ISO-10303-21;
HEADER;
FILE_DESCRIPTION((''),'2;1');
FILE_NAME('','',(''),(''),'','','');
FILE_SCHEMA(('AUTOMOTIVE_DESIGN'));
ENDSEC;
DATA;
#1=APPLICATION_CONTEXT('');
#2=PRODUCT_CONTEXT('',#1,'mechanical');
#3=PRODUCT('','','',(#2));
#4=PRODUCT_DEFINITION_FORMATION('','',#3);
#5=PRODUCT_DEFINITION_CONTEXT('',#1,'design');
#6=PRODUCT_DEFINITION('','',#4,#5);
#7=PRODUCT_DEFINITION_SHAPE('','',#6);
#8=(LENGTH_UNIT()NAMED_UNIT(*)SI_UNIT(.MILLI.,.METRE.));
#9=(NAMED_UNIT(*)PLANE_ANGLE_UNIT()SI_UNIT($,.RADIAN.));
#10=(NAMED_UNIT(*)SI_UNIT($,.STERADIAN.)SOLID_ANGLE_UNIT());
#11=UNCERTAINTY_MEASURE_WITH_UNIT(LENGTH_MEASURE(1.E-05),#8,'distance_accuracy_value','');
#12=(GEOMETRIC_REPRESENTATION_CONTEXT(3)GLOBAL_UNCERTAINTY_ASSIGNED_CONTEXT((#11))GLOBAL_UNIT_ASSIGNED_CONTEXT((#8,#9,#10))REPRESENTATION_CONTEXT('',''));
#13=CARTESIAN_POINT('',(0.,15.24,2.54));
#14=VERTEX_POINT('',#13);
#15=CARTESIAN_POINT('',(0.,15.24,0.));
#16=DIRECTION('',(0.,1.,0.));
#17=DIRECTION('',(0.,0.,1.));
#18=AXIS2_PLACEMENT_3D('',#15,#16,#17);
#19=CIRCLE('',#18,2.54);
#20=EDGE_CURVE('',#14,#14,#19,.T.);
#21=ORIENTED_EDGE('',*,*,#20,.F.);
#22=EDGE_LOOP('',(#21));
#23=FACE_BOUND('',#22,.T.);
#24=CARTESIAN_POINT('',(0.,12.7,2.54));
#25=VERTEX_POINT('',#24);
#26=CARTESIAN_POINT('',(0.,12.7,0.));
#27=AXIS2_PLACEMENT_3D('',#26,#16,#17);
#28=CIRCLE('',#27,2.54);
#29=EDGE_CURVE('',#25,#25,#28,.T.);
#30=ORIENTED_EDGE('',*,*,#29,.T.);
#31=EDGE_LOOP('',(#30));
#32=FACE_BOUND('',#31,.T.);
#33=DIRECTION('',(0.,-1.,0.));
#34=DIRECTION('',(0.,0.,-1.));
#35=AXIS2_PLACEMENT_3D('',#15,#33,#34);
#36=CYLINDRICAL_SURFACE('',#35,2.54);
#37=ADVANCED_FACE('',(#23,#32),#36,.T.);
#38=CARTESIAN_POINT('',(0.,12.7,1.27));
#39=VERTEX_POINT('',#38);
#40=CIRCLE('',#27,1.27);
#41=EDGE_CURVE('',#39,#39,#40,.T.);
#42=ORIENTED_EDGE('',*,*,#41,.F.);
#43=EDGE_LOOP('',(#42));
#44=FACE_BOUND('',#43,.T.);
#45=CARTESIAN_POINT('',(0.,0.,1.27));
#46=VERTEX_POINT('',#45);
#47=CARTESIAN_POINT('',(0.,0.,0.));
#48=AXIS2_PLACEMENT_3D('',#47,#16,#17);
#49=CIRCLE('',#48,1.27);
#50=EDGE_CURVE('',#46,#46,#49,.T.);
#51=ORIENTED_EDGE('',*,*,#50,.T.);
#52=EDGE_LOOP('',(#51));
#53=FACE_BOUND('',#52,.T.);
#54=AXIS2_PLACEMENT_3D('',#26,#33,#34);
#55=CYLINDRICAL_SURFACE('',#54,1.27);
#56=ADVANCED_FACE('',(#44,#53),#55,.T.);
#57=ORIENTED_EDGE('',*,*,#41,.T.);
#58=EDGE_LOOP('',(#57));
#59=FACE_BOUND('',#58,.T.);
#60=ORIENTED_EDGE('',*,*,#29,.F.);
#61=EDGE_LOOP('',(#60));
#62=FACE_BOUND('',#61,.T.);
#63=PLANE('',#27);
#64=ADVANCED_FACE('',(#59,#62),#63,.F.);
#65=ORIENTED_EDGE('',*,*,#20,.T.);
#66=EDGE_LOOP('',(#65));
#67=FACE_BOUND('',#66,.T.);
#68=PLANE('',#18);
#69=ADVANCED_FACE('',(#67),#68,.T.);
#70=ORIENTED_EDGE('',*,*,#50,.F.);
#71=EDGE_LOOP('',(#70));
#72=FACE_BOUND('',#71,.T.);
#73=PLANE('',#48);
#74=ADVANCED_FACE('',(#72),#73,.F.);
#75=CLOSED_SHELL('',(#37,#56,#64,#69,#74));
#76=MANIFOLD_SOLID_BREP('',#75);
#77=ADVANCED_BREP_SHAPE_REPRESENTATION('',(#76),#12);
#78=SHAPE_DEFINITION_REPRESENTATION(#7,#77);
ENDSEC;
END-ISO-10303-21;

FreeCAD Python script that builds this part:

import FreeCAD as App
import Part
import Sketcher
Q = App.Units.Quantity

doc = App.newDocument("Part")
body = doc.addObject("PartDesign::Body", "Body")

# Sketch on XZ plane
sketch1 = body.newObject("Sketcher::SketchObject", "Sketch")
sketch1.AttachmentSupport = (doc.getObject("XZ_Plane"), [""])
sketch1.MapMode = "FlatFace"
sketch1.addGeometry(Part.Circle(App.Vector(0, 0, 0), App.Vector(0, 0, 1), 1.3), False)
sketch1.addConstraint([
    Sketcher.Constraint("Coincident", 0, 3, -1, 1),
    Sketcher.Constraint("Diameter", 0, Q("0.1 in")),
])
pad1 = body.newObject("PartDesign::Pad", "Pad")
pad1.Profile = sketch1
pad1.Length = Q("0.5 in")
pad1.Reversed = True

# Sketch on XZ plane
sketch2 = body.newObject("Sketcher::SketchObject", "Sketch001")
sketch2.AttachmentSupport = (doc.getObject("XZ_Plane"), [""])
sketch2.MapMode = "FlatFace"
sketch2.AttachmentOffset = App.Placement(App.Vector(0, 0, -0.5 * 25.4), App.Rotation())
sketch2.addGeometry(Part.Circle(App.Vector(0, 0, 0), App.Vector(0, 0, 1), 2.5), False)
sketch2.addConstraint([
    Sketcher.Constraint("Coincident", 0, 3, -1, 1),
    Sketcher.Constraint("Diameter", 0, Q("0.2 in")),
])
pad2 = body.newObject("PartDesign::Pad", "Pad001")
pad2.Profile = sketch2
pad2.Length = Q("0.1 in")
pad2.Reversed = True

doc.recompute()
